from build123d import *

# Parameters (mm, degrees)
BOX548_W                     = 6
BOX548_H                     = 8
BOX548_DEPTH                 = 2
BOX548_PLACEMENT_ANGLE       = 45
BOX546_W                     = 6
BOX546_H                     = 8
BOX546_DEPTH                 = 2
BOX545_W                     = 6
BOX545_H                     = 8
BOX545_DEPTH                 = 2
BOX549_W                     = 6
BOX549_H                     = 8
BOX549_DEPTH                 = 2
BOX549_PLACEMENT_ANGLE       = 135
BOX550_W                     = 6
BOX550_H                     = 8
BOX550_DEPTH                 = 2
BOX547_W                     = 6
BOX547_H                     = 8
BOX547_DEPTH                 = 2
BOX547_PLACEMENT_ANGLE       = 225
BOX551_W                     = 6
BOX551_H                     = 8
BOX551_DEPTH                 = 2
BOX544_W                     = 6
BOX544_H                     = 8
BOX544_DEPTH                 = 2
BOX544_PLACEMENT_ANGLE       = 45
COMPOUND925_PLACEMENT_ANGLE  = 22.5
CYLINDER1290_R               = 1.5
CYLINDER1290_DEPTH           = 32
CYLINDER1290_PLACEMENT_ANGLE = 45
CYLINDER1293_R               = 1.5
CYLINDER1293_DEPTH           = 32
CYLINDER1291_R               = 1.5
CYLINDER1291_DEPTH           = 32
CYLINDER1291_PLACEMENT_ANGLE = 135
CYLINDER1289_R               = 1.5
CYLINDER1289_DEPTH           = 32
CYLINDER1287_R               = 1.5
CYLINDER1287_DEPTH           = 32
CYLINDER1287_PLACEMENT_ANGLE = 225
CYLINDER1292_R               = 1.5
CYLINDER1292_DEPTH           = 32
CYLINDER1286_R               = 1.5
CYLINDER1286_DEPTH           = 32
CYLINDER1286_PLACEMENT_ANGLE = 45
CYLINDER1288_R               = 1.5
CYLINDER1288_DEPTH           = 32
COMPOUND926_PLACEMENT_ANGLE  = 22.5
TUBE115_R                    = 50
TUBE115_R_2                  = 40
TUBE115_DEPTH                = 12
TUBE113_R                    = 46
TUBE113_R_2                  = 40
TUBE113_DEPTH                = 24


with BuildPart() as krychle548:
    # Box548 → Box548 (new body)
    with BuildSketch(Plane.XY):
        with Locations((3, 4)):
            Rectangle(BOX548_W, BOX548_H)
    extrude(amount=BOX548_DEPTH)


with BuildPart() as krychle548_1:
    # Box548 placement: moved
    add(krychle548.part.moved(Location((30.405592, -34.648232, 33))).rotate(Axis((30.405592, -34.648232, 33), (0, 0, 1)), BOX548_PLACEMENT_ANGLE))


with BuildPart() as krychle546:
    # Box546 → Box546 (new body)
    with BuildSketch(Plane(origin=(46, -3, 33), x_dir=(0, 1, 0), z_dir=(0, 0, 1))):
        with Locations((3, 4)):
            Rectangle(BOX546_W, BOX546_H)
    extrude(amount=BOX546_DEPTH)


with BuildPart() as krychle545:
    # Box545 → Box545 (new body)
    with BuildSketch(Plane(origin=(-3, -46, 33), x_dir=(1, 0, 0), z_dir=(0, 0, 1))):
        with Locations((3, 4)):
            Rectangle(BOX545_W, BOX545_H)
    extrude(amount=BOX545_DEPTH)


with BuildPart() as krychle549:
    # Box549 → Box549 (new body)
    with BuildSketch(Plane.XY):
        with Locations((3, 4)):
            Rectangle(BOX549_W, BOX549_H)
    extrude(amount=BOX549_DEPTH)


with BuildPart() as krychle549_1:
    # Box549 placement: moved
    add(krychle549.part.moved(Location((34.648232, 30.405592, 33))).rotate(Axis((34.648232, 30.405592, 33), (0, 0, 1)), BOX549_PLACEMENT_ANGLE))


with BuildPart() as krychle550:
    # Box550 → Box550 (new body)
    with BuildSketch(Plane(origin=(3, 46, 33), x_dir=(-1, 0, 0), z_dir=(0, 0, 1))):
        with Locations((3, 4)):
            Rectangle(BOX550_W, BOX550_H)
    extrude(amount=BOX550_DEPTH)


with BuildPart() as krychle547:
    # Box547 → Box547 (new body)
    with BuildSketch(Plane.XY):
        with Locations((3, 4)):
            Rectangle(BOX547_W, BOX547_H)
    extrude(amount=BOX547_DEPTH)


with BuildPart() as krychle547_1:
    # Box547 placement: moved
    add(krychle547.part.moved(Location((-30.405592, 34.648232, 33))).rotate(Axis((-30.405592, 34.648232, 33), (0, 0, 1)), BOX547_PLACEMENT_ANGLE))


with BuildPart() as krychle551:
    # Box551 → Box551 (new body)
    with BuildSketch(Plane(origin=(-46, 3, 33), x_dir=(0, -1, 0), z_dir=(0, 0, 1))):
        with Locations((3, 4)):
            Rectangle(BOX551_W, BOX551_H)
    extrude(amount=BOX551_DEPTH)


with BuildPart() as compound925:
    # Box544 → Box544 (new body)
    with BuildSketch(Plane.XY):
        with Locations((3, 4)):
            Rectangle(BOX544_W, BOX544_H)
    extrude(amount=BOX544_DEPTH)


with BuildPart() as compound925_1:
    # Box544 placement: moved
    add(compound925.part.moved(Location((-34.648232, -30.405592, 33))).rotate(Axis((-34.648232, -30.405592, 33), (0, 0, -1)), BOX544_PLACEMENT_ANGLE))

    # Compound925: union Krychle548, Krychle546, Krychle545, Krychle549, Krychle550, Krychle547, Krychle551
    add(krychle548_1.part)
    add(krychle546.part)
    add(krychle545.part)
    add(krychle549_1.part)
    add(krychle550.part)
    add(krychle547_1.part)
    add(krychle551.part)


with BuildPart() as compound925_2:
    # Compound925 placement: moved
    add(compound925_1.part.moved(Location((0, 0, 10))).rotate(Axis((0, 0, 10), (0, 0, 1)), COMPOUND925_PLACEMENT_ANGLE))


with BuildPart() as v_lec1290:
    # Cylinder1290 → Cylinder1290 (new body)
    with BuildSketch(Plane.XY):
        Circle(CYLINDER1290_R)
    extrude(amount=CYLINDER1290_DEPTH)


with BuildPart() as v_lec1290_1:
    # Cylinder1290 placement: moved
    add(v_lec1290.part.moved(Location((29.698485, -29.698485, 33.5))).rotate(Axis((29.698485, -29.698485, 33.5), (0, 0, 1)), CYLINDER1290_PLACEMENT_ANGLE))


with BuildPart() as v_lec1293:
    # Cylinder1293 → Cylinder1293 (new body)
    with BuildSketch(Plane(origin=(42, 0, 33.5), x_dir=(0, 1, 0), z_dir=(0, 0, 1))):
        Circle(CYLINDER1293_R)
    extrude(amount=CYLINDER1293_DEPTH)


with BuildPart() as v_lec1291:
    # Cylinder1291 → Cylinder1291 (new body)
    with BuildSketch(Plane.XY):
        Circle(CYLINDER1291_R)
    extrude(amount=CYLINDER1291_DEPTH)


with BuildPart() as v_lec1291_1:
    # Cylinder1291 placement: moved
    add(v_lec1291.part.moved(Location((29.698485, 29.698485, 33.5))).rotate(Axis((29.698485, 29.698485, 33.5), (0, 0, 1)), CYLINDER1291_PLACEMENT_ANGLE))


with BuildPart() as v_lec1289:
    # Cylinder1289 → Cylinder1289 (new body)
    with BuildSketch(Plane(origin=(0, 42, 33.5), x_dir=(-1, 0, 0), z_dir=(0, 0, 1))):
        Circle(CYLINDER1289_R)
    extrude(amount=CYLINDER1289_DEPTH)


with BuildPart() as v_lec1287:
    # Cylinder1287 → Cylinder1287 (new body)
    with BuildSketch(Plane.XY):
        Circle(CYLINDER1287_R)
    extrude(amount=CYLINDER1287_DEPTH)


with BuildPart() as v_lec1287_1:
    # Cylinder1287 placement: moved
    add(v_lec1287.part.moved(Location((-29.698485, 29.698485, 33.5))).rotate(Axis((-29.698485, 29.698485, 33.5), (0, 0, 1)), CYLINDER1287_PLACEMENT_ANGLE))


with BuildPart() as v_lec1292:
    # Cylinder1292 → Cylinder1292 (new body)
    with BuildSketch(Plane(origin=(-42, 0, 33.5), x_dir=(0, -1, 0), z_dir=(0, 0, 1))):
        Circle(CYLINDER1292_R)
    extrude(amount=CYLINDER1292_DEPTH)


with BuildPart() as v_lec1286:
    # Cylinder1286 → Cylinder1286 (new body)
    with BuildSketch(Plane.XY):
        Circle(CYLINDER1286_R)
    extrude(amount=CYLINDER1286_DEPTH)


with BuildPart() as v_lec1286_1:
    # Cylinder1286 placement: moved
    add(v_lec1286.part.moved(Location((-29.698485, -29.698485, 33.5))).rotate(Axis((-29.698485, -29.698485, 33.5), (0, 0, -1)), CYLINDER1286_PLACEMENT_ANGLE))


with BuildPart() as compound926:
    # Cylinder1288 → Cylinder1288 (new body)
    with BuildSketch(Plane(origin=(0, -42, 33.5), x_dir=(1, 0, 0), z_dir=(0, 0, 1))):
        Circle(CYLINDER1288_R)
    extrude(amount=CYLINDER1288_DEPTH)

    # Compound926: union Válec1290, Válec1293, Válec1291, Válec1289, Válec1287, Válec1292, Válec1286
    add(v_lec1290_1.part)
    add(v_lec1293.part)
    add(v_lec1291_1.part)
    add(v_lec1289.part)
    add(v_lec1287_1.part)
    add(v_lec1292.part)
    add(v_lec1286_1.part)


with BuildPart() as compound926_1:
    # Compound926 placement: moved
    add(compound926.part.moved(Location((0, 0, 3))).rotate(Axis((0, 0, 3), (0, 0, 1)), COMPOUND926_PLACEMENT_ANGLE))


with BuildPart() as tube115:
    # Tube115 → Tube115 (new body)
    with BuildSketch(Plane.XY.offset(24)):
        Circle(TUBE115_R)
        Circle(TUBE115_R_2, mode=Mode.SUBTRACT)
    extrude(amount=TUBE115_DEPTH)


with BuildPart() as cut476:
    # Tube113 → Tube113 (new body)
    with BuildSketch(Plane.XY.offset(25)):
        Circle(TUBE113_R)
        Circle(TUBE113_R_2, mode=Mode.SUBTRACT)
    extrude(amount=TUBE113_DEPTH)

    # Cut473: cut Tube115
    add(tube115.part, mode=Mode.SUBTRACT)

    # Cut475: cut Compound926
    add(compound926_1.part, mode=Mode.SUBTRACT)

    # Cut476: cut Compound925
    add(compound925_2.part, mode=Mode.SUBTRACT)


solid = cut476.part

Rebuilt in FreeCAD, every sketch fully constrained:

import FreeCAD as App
import Part
import Sketcher

doc = App.newDocument("Part")
params = doc.addObject("Spreadsheet::Sheet", "Params")
for row, (alias, value) in enumerate([
    ("sketch1_width", "6 mm"),
    ("sketch1_height", "8 mm"),
    ("pad1_length", "2 mm"),
    ("sketch2_width", "8 mm"),
    ("sketch2_height", "6 mm"),
    ("pad2_length", "2 mm"),
    ("sketch3_width", "6 mm"),
    ("sketch3_height", "8 mm"),
    ("pad3_length", "2 mm"),
    ("sketch4_width", "6 mm"),
    ("sketch4_height", "8 mm"),
    ("pad4_length", "2 mm"),
    ("sketch5_width", "6 mm"),
    ("sketch5_height", "8 mm"),
    ("pad5_length", "2 mm"),
    ("sketch6_width", "6 mm"),
    ("sketch6_height", "8 mm"),
    ("pad6_length", "2 mm"),
    ("sketch7_width", "8 mm"),
    ("sketch7_height", "6 mm"),
    ("pad7_length", "2 mm"),
    ("sketch8_width", "6 mm"),
    ("sketch8_height", "8 mm"),
    ("pad8_length", "2 mm"),
    ("sketch9_diameter", "3 mm"),
    ("pad9_length", "32 mm"),
    ("sketch10_diameter", "3 mm"),
    ("pad10_length", "32 mm"),
    ("sketch11_diameter", "3 mm"),
    ("pad11_length", "32 mm"),
    ("sketch12_diameter", "3 mm"),
    ("pad12_length", "32 mm"),
    ("sketch13_diameter", "3 mm"),
    ("pad13_length", "32 mm"),
    ("sketch14_diameter", "3 mm"),
    ("pad14_length", "32 mm"),
    ("sketch15_diameter", "3 mm"),
    ("pad15_length", "32 mm"),
    ("sketch16_diameter", "3 mm"),
    ("pad16_length", "32 mm"),
    ("sketch17_diameter", "100 mm"),
    ("sketch17_diameter2", "80 mm"),
    ("pad17_length", "12 mm"),
    ("sketch18_diameter", "92 mm"),
    ("sketch18_diameter2", "80 mm"),
    ("pad18_length", "24 mm"),
], start=1):
    params.set(f"A{row}", alias)
    params.set(f"B{row}", "=" + value)
    params.setAlias(f"B{row}", alias)

body = doc.addObject("PartDesign::Body", "Body")

# Sketch on XY plane
sketch1 = body.newObject("Sketcher::SketchObject", "Sketch")
sketch1.AttachmentSupport = (doc.getObject("XY_Plane"), [""])
sketch1.MapMode = "FlatFace"
sketch1.addGeometry([
    Part.LineSegment(App.Vector(0, 8, 0), App.Vector(0, 0, 0)),
    Part.LineSegment(App.Vector(0, 0, 0), App.Vector(6, 0, 0)),
    Part.LineSegment(App.Vector(6, 0, 0), App.Vector(6, 8, 0)),
    Part.LineSegment(App.Vector(6, 8, 0), App.Vector(0, 8, 0)),
], False)
sketch1.addConstraint([
    Sketcher.Constraint("Coincident", 0, 2, 1, 1),
    Sketcher.Constraint("Coincident", 1, 2, 2, 1),
    Sketcher.Constraint("Coincident", 2, 2, 3, 1),
    Sketcher.Constraint("Coincident", 3, 2, 0, 1),
    Sketcher.Constraint("Vertical", 0),
    Sketcher.Constraint("Horizontal", 1),
    Sketcher.Constraint("Vertical", 2),
    Sketcher.Constraint("Horizontal", 3),
    Sketcher.Constraint("Coincident", 0, 2, -1, 1),
    Sketcher.Constraint("DistanceX", 1, 1, 1, 2, 6.0),
    Sketcher.Constraint("DistanceY", 0, 2, 0, 1, 8.0),
])
sketch1.setExpression("Constraints[9]", "Params.sketch1_width")
sketch1.setExpression("Constraints[10]", "Params.sketch1_height")
pad1 = body.newObject("PartDesign::Pad", "Pad")
pad1.Profile = sketch1
pad1.setExpression("Length", "Params.pad1_length")
body2 = doc.addObject("PartDesign::Body", "Body001")
doc.recompute()

body.Placement = App.Placement(App.Vector(30.405592, -34.648232, 33), App.Rotation(App.Vector(0, 0, 1), 45))
boolean = body2.newObject("PartDesign::Boolean", "Boolean")
boolean.Type = "Fuse"
boolean.addObjects([body])
body3 = doc.addObject("PartDesign::Body", "Body002")

# Sketch on XY plane
sketch2 = body3.newObject("Sketcher::SketchObject", "Sketch001")
sketch2.AttachmentSupport = (doc.getObject("XY_Plane002"), [""])
sketch2.MapMode = "FlatFace"
sketch2.AttachmentOffset = App.Placement(App.Vector(0, 0, 33), App.Rotation())
sketch2.addGeometry([
    Part.LineSegment(App.Vector(38, -3, 0), App.Vector(46, -3, 0)),
    Part.LineSegment(App.Vector(46, -3, 0), App.Vector(46, 3, 0)),
    Part.LineSegment(App.Vector(46, 3, 0), App.Vector(38, 3, 0)),
    Part.LineSegment(App.Vector(38, 3, 0), App.Vector(38, -3, 0)),
], False)
sketch2.addConstraint([
    Sketcher.Constraint("Coincident", 0, 2, 1, 1),
    Sketcher.Constraint("Coincident", 1, 2, 2, 1),
    Sketcher.Constraint("Coincident", 2, 2, 3, 1),
    Sketcher.Constraint("Coincident", 3, 2, 0, 1),
    Sketcher.Constraint("Horizontal", 0),
    Sketcher.Constraint("Vertical", 1),
    Sketcher.Constraint("Horizontal", 2),
    Sketcher.Constraint("Vertical", 3),
    Sketcher.Constraint("DistanceX", 0, 1, 0, 2, 8.0),
    Sketcher.Constraint("DistanceY", 1, 1, 1, 2, 6.0),
    Sketcher.Constraint("DistanceX", -1, 1, 0, 2, 46.0),
    Sketcher.Constraint("DistanceY", 0, 2, -1, 1, 3.0),
])
sketch2.setExpression("Constraints[8]", "Params.sketch2_width")
sketch2.setExpression("Constraints[9]", "Params.sketch2_height")
pad2 = body3.newObject("PartDesign::Pad", "Pad001")
pad2.Profile = sketch2
pad2.setExpression("Length", "Params.pad2_length")
body4 = doc.addObject("PartDesign::Body", "Body003")

# Sketch on XY plane
sketch3 = body4.newObject("Sketcher::SketchObject", "Sketch002")
sketch3.AttachmentSupport = (doc.getObject("XY_Plane003"), [""])
sketch3.MapMode = "FlatFace"
sketch3.AttachmentOffset = App.Placement(App.Vector(0, 0, 33), App.Rotation())
sketch3.addGeometry([
    Part.LineSegment(App.Vector(-3, -38, 0), App.Vector(-3, -46, 0)),
    Part.LineSegment(App.Vector(-3, -46, 0), App.Vector(3, -46, 0)),
    Part.LineSegment(App.Vector(3, -46, 0), App.Vector(3, -38, 0)),
    Part.LineSegment(App.Vector(3, -38, 0), App.Vector(-3, -38, 0)),
], False)
sketch3.addConstraint([
    Sketcher.Constraint("Coincident", 0, 2, 1, 1),
    Sketcher.Constraint("Coincident", 1, 2, 2, 1),
    Sketcher.Constraint("Coincident", 2, 2, 3, 1),
    Sketcher.Constraint("Coincident", 3, 2, 0, 1),
    Sketcher.Constraint("Vertical", 0),
    Sketcher.Constraint("Horizontal", 1),
    Sketcher.Constraint("Vertical", 2),
    Sketcher.Constraint("Horizontal", 3),
    Sketcher.Constraint("DistanceX", 1, 1, 1, 2, 6.0),
    Sketcher.Constraint("DistanceY", 0, 2, 0, 1, 8.0),
    Sketcher.Constraint("DistanceX", 0, 2, -1, 1, 3.0),
    Sketcher.Constraint("DistanceY", 0, 2, -1, 1, 46.0),
])
sketch3.setExpression("Constraints[8]", "Params.sketch3_width")
sketch3.setExpression("Constraints[9]", "Params.sketch3_height")
pad3 = body4.newObject("PartDesign::Pad", "Pad002")
pad3.Profile = sketch3
pad3.setExpression("Length", "Params.pad3_length")
body5 = doc.addObject("PartDesign::Body", "Body004")

# Sketch on XY plane
sketch4 = body5.newObject("Sketcher::SketchObject", "Sketch003")
sketch4.AttachmentSupport = (doc.getObject("XY_Plane004"), [""])
sketch4.MapMode = "FlatFace"
sketch4.addGeometry([
    Part.LineSegment(App.Vector(0, 8, 0), App.Vector(0, 0, 0)),
    Part.LineSegment(App.Vector(0, 0, 0), App.Vector(6, 0, 0)),
    Part.LineSegment(App.Vector(6, 0, 0), App.Vector(6, 8, 0)),
    Part.LineSegment(App.Vector(6, 8, 0), App.Vector(0, 8, 0)),
], False)
sketch4.addConstraint([
    Sketcher.Constraint("Coincident", 0, 2, 1, 1),
    Sketcher.Constraint("Coincident", 1, 2, 2, 1),
    Sketcher.Constraint("Coincident", 2, 2, 3, 1),
    Sketcher.Constraint("Coincident", 3, 2, 0, 1),
    Sketcher.Constraint("Vertical", 0),
    Sketcher.Constraint("Horizontal", 1),
    Sketcher.Constraint("Vertical", 2),
    Sketcher.Constraint("Horizontal", 3),
    Sketcher.Constraint("Coincident", 0, 2, -1, 1),
    Sketcher.Constraint("DistanceX", 1, 1, 1, 2, 6.0),
    Sketcher.Constraint("DistanceY", 0, 2, 0, 1, 8.0),
])
sketch4.setExpression("Constraints[9]", "Params.sketch4_width")
sketch4.setExpression("Constraints[10]", "Params.sketch4_height")
pad4 = body5.newObject("PartDesign::Pad", "Pad003")
pad4.Profile = sketch4
pad4.setExpression("Length", "Params.pad4_length")
body6 = doc.addObject("PartDesign::Body", "Body005")
doc.recompute()

body5.Placement = App.Placement(App.Vector(34.648232, 30.405592, 33), App.Rotation(App.Vector(0, 0, 1), 135))
boolean2 = body6.newObject("PartDesign::Boolean", "Boolean001")
boolean2.Type = "Fuse"
boolean2.addObjects([body5])
body7 = doc.addObject("PartDesign::Body", "Body006")

# Sketch on XY plane
sketch5 = body7.newObject("Sketcher::SketchObject", "Sketch004")
sketch5.AttachmentSupport = (doc.getObject("XY_Plane006"), [""])
sketch5.MapMode = "FlatFace"
sketch5.AttachmentOffset = App.Placement(App.Vector(0, 0, 33), App.Rotation())
sketch5.addGeometry([
    Part.LineSegment(App.Vector(3, 38, 0), App.Vector(3, 46, 0)),
    Part.LineSegment(App.Vector(3, 46, 0), App.Vector(-3, 46, 0)),
    Part.LineSegment(App.Vector(-3, 46, 0), App.Vector(-3, 38, 0)),
    Part.LineSegment(App.Vector(-3, 38, 0), App.Vector(3, 38, 0)),
], False)
sketch5.addConstraint([
    Sketcher.Constraint("Coincident", 0, 2, 1, 1),
    Sketcher.Constraint("Coincident", 1, 2, 2, 1),
    Sketcher.Constraint("Coincident", 2, 2, 3, 1),
    Sketcher.Constraint("Coincident", 3, 2, 0, 1),
    Sketcher.Constraint("Vertical", 0),
    Sketcher.Constraint("Horizontal", 1),
    Sketcher.Constraint("Vertical", 2),
    Sketcher.Constraint("Horizontal", 3),
    Sketcher.Constraint("DistanceX", 1, 2, 1, 1, 6.0),
    Sketcher.Constraint("DistanceY", 0, 1, 0, 2, 8.0),
    Sketcher.Constraint("DistanceX", -1, 1, 0, 2, 3.0),
    Sketcher.Constraint("DistanceY", -1, 1, 0, 2, 46.0),
])
sketch5.setExpression("Constraints[8]", "Params.sketch5_width")
sketch5.setExpression("Constraints[9]", "Params.sketch5_height")
pad5 = body7.newObject("PartDesign::Pad", "Pad004")
pad5.Profile = sketch5
pad5.setExpression("Length", "Params.pad5_length")
body8 = doc.addObject("PartDesign::Body", "Body007")

# Sketch on XY plane
sketch6 = body8.newObject("Sketcher::SketchObject", "Sketch005")
sketch6.AttachmentSupport = (doc.getObject("XY_Plane007"), [""])
sketch6.MapMode = "FlatFace"
sketch6.addGeometry([
    Part.LineSegment(App.Vector(0, 8, 0), App.Vector(0, 0, 0)),
    Part.LineSegment(App.Vector(0, 0, 0), App.Vector(6, 0, 0)),
    Part.LineSegment(App.Vector(6, 0, 0), App.Vector(6, 8, 0)),
    Part.LineSegment(App.Vector(6, 8, 0), App.Vector(0, 8, 0)),
], False)
sketch6.addConstraint([
    Sketcher.Constraint("Coincident", 0, 2, 1, 1),
    Sketcher.Constraint("Coincident", 1, 2, 2, 1),
    Sketcher.Constraint("Coincident", 2, 2, 3, 1),
    Sketcher.Constraint("Coincident", 3, 2, 0, 1),
    Sketcher.Constraint("Vertical", 0),
    Sketcher.Constraint("Horizontal", 1),
    Sketcher.Constraint("Vertical", 2),
    Sketcher.Constraint("Horizontal", 3),
    Sketcher.Constraint("Coincident", 0, 2, -1, 1),
    Sketcher.Constraint("DistanceX", 1, 1, 1, 2, 6.0),
    Sketcher.Constraint("DistanceY", 0, 2, 0, 1, 8.0),
])
sketch6.setExpression("Constraints[9]", "Params.sketch6_width")
sketch6.setExpression("Constraints[10]", "Params.sketch6_height")
pad6 = body8.newObject("PartDesign::Pad", "Pad005")
pad6.Profile = sketch6
pad6.setExpression("Length", "Params.pad6_length")
body9 = doc.addObject("PartDesign::Body", "Body008")
doc.recompute()

body8.Placement = App.Placement(App.Vector(-30.405592, 34.648232, 33), App.Rotation(App.Vector(0, 0, 1), 225))
boolean3 = body9.newObject("PartDesign::Boolean", "Boolean002")
boolean3.Type = "Fuse"
boolean3.addObjects([body8])
body10 = doc.addObject("PartDesign::Body", "Body009")

# Sketch on XY plane
sketch7 = body10.newObject("Sketcher::SketchObject", "Sketch006")
sketch7.AttachmentSupport = (doc.getObject("XY_Plane009"), [""])
sketch7.MapMode = "FlatFace"
sketch7.AttachmentOffset = App.Placement(App.Vector(0, 0, 33), App.Rotation())
sketch7.addGeometry([
    Part.LineSegment(App.Vector(-38, 3, 0), App.Vector(-46, 3, 0)),
    Part.LineSegment(App.Vector(-46, 3, 0), App.Vector(-46, -3, 0)),
    Part.LineSegment(App.Vector(-46, -3, 0), App.Vector(-38, -3, 0)),
    Part.LineSegment(App.Vector(-38, -3, 0), App.Vector(-38, 3, 0)),
], False)
sketch7.addConstraint([
    Sketcher.Constraint("Coincident", 0, 2, 1, 1),
    Sketcher.Constraint("Coincident", 1, 2, 2, 1),
    Sketcher.Constraint("Coincident", 2, 2, 3, 1),
    Sketcher.Constraint("Coincident", 3, 2, 0, 1),
    Sketcher.Constraint("Horizontal", 0),
    Sketcher.Constraint("Vertical", 1),
    Sketcher.Constraint("Horizontal", 2),
    Sketcher.Constraint("Vertical", 3),
    Sketcher.Constraint("DistanceX", 0, 2, 0, 1, 8.0),
    Sketcher.Constraint("DistanceY", 1, 2, 1, 1, 6.0),
    Sketcher.Constraint("DistanceX", 0, 2, -1, 1, 46.0),
    Sketcher.Constraint("DistanceY", -1, 1, 0, 2, 3.0),
])
sketch7.setExpression("Constraints[8]", "Params.sketch7_width")
sketch7.setExpression("Constraints[9]", "Params.sketch7_height")
pad7 = body10.newObject("PartDesign::Pad", "Pad006")
pad7.Profile = sketch7
pad7.setExpression("Length", "Params.pad7_length")
body11 = doc.addObject("PartDesign::Body", "Body010")

# Sketch on XY plane
sketch8 = body11.newObject("Sketcher::SketchObject", "Sketch007")
sketch8.AttachmentSupport = (doc.getObject("XY_Plane010"), [""])
sketch8.MapMode = "FlatFace"
sketch8.addGeometry([
    Part.LineSegment(App.Vector(0, 8, 0), App.Vector(0, 0, 0)),
    Part.LineSegment(App.Vector(0, 0, 0), App.Vector(6, 0, 0)),
    Part.LineSegment(App.Vector(6, 0, 0), App.Vector(6, 8, 0)),
    Part.LineSegment(App.Vector(6, 8, 0), App.Vector(0, 8, 0)),
], False)
sketch8.addConstraint([
    Sketcher.Constraint("Coincident", 0, 2, 1, 1),
    Sketcher.Constraint("Coincident", 1, 2, 2, 1),
    Sketcher.Constraint("Coincident", 2, 2, 3, 1),
    Sketcher.Constraint("Coincident", 3, 2, 0, 1),
    Sketcher.Constraint("Vertical", 0),
    Sketcher.Constraint("Horizontal", 1),
    Sketcher.Constraint("Vertical", 2),
    Sketcher.Constraint("Horizontal", 3),
    Sketcher.Constraint("Coincident", 0, 2, -1, 1),
    Sketcher.Constraint("DistanceX", 1, 1, 1, 2, 6.0),
    Sketcher.Constraint("DistanceY", 0, 2, 0, 1, 8.0),
])
sketch8.setExpression("Constraints[9]", "Params.sketch8_width")
sketch8.setExpression("Constraints[10]", "Params.sketch8_height")
pad8 = body11.newObject("PartDesign::Pad", "Pad007")
pad8.Profile = sketch8
pad8.setExpression("Length", "Params.pad8_length")
body12 = doc.addObject("PartDesign::Body", "Body011")
body12.AllowCompound = True
doc.recompute()

body11.Placement = App.Placement(App.Vector(-34.648232, -30.405592, 33), App.Rotation(App.Vector(0, 0, -1), 45))
boolean4 = body12.newObject("PartDesign::Boolean", "Boolean003")
boolean4.Type = "Fuse"
boolean4.addObjects([body11])
doc.recompute()

boolean5 = body12.newObject("PartDesign::Boolean", "Boolean004")
boolean5.Type = "Fuse"
boolean5.addObjects([body2])
doc.recompute()

boolean6 = body12.newObject("PartDesign::Boolean", "Boolean005")
boolean6.Type = "Fuse"
boolean6.addObjects([body3])
doc.recompute()

boolean7 = body12.newObject("PartDesign::Boolean", "Boolean006")
boolean7.Type = "Fuse"
boolean7.addObjects([body4])
doc.recompute()

boolean8 = body12.newObject("PartDesign::Boolean", "Boolean007")
boolean8.Type = "Fuse"
boolean8.addObjects([body6])
doc.recompute()

boolean9 = body12.newObject("PartDesign::Boolean", "Boolean008")
boolean9.Type = "Fuse"
boolean9.addObjects([body7])
doc.recompute()

boolean10 = body12.newObject("PartDesign::Boolean", "Boolean009")
boolean10.Type = "Fuse"
boolean10.addObjects([body9])
doc.recompute()

boolean11 = body12.newObject("PartDesign::Boolean", "Boolean010")
boolean11.Type = "Fuse"
boolean11.addObjects([body10])
body13 = doc.addObject("PartDesign::Body", "Body012")
body13.AllowCompound = True
doc.recompute()

body12.Placement = App.Placement(App.Vector(0, 0, 10), App.Rotation(App.Vector(0, 0, 1), 22.5))
boolean12 = body13.newObject("PartDesign::Boolean", "Boolean011")
boolean12.Type = "Fuse"
boolean12.addObjects([body12])
body14 = doc.addObject("PartDesign::Body", "Body013")

# Sketch on XY plane
sketch9 = body14.newObject("Sketcher::SketchObject", "Sketch008")
sketch9.AttachmentSupport = (doc.getObject("XY_Plane013"), [""])
sketch9.MapMode = "FlatFace"
sketch9.addGeometry(Part.Circle(App.Vector(0, 0, 0), App.Vector(0, 0, 1), 1.5), False)
sketch9.addConstraint([
    Sketcher.Constraint("Coincident", 0, 3, -1, 1),
    Sketcher.Constraint("Diameter", 0, 3.0),
])
sketch9.setExpression("Constraints[1]", "Params.sketch9_diameter")
pad9 = body14.newObject("PartDesign::Pad", "Pad008")
pad9.Profile = sketch9
pad9.setExpression("Length", "Params.pad9_length")
body15 = doc.addObject("PartDesign::Body", "Body014")
doc.recompute()

body14.Placement = App.Placement(App.Vector(29.698485, -29.698485, 33.5), App.Rotation(App.Vector(0, 0, 1), 45))
boolean13 = body15.newObject("PartDesign::Boolean", "Boolean012")
boolean13.Type = "Fuse"
boolean13.addObjects([body14])
body16 = doc.addObject("PartDesign::Body", "Body015")

# Sketch on XY plane
sketch10 = body16.newObject("Sketcher::SketchObject", "Sketch009")
sketch10.AttachmentSupport = (doc.getObject("XY_Plane015"), [""])
sketch10.MapMode = "FlatFace"
sketch10.AttachmentOffset = App.Placement(App.Vector(0, 0, 33.5), App.Rotation())
sketch10.addGeometry(Part.Circle(App.Vector(42, 0, 0), App.Vector(0, 0, 1), 1.5), False)
sketch10.addConstraint([
    Sketcher.Constraint("PointOnObject", 0, 3, -1),
    Sketcher.Constraint("Diameter", 0, 3.0),
    Sketcher.Constraint("DistanceX", -1, 1, 0, 3, 42.0),
])
sketch10.setExpression("Constraints[1]", "Params.sketch10_diameter")
pad10 = body16.newObject("PartDesign::Pad", "Pad009")
pad10.Profile = sketch10
pad10.setExpression("Length", "Params.pad10_length")
body17 = doc.addObject("PartDesign::Body", "Body016")

# Sketch on XY plane
sketch11 = body17.newObject("Sketcher::SketchObject", "Sketch010")
sketch11.AttachmentSupport = (doc.getObject("XY_Plane016"), [""])
sketch11.MapMode = "FlatFace"
sketch11.addGeometry(Part.Circle(App.Vector(0, 0, 0), App.Vector(0, 0, 1), 1.5), False)
sketch11.addConstraint([
    Sketcher.Constraint("Coincident", 0, 3, -1, 1),
    Sketcher.Constraint("Diameter", 0, 3.0),
])
sketch11.setExpression("Constraints[1]", "Params.sketch11_diameter")
pad11 = body17.newObject("PartDesign::Pad", "Pad010")
pad11.Profile = sketch11
pad11.setExpression("Length", "Params.pad11_length")
body18 = doc.addObject("PartDesign::Body", "Body017")
doc.recompute()

body17.Placement = App.Placement(App.Vector(29.698485, 29.698485, 33.5), App.Rotation(App.Vector(0, 0, 1), 135))
boolean14 = body18.newObject("PartDesign::Boolean", "Boolean013")
boolean14.Type = "Fuse"
boolean14.addObjects([body17])
body19 = doc.addObject("PartDesign::Body", "Body018")

# Sketch on XY plane
sketch12 = body19.newObject("Sketcher::SketchObject", "Sketch011")
sketch12.AttachmentSupport = (doc.getObject("XY_Plane018"), [""])
sketch12.MapMode = "FlatFace"
sketch12.AttachmentOffset = App.Placement(App.Vector(0, 0, 33.5), App.Rotation())
sketch12.addGeometry(Part.Circle(App.Vector(0, 42, 0), App.Vector(0, 0, 1), 1.5), False)
sketch12.addConstraint([
    Sketcher.Constraint("PointOnObject", 0, 3, -2),
    Sketcher.Constraint("Diameter", 0, 3.0),
    Sketcher.Constraint("DistanceY", -1, 1, 0, 3, 42.0),
])
sketch12.setExpression("Constraints[1]", "Params.sketch12_diameter")
pad12 = body19.newObject("PartDesign::Pad", "Pad011")
pad12.Profile = sketch12
pad12.setExpression("Length", "Params.pad12_length")
body20 = doc.addObject("PartDesign::Body", "Body019")

# Sketch on XY plane
sketch13 = body20.newObject("Sketcher::SketchObject", "Sketch012")
sketch13.AttachmentSupport = (doc.getObject("XY_Plane019"), [""])
sketch13.MapMode = "FlatFace"
sketch13.addGeometry(Part.Circle(App.Vector(0, 0, 0), App.Vector(0, 0, 1), 1.5), False)
sketch13.addConstraint([
    Sketcher.Constraint("Coincident", 0, 3, -1, 1),
    Sketcher.Constraint("Diameter", 0, 3.0),
])
sketch13.setExpression("Constraints[1]", "Params.sketch13_diameter")
pad13 = body20.newObject("PartDesign::Pad", "Pad012")
pad13.Profile = sketch13
pad13.setExpression("Length", "Params.pad13_length")
body21 = doc.addObject("PartDesign::Body", "Body020")
doc.recompute()

body20.Placement = App.Placement(App.Vector(-29.698485, 29.698485, 33.5), App.Rotation(App.Vector(0, 0, 1), 225))
boolean15 = body21.newObject("PartDesign::Boolean", "Boolean014")
boolean15.Type = "Fuse"
boolean15.addObjects([body20])
body22 = doc.addObject("PartDesign::Body", "Body021")

# Sketch on XY plane
sketch14 = body22.newObject("Sketcher::SketchObject", "Sketch013")
sketch14.AttachmentSupport = (doc.getObject("XY_Plane021"), [""])
sketch14.MapMode = "FlatFace"
sketch14.AttachmentOffset = App.Placement(App.Vector(0, 0, 33.5), App.Rotation())
sketch14.addGeometry(Part.Circle(App.Vector(-42, 0, 0), App.Vector(0, 0, 1), 1.5), False)
sketch14.addConstraint([
    Sketcher.Constraint("PointOnObject", 0, 3, -1),
    Sketcher.Constraint("Diameter", 0, 3.0),
    Sketcher.Constraint("DistanceX", 0, 3, -1, 1, 42.0),
])
sketch14.setExpression("Constraints[1]", "Params.sketch14_diameter")
pad14 = body22.newObject("PartDesign::Pad", "Pad013")
pad14.Profile = sketch14
pad14.setExpression("Length", "Params.pad14_length")
body23 = doc.addObject("PartDesign::Body", "Body022")

# Sketch on XY plane
sketch15 = body23.newObject("Sketcher::SketchObject", "Sketch014")
sketch15.AttachmentSupport = (doc.getObject("XY_Plane022"), [""])
sketch15.MapMode = "FlatFace"
sketch15.addGeometry(Part.Circle(App.Vector(0, 0, 0), App.Vector(0, 0, 1), 1.5), False)
sketch15.addConstraint([
    Sketcher.Constraint("Coincident", 0, 3, -1, 1),
    Sketcher.Constraint("Diameter", 0, 3.0),
])
sketch15.setExpression("Constraints[1]", "Params.sketch15_diameter")
pad15 = body23.newObject("PartDesign::Pad", "Pad014")
pad15.Profile = sketch15
pad15.setExpression("Length", "Params.pad15_length")
body24 = doc.addObject("PartDesign::Body", "Body023")
doc.recompute()

body23.Placement = App.Placement(App.Vector(-29.698485, -29.698485, 33.5), App.Rotation(App.Vector(0, 0, -1), 45))
boolean16 = body24.newObject("PartDesign::Boolean", "Boolean015")
boolean16.Type = "Fuse"
boolean16.addObjects([body23])
body25 = doc.addObject("PartDesign::Body", "Body024")
body25.AllowCompound = True

# Sketch on XY plane
sketch16 = body25.newObject("Sketcher::SketchObject", "Sketch015")
sketch16.AttachmentSupport = (doc.getObject("XY_Plane024"), [""])
sketch16.MapMode = "FlatFace"
sketch16.AttachmentOffset = App.Placement(App.Vector(0, 0, 33.5), App.Rotation())
sketch16.addGeometry(Part.Circle(App.Vector(0, -42, 0), App.Vector(0, 0, 1), 1.5), False)
sketch16.addConstraint([
    Sketcher.Constraint("PointOnObject", 0, 3, -2),
    Sketcher.Constraint("Diameter", 0, 3.0),
    Sketcher.Constraint("DistanceY", 0, 3, -1, 1, 42.0),
])
sketch16.setExpression("Constraints[1]", "Params.sketch16_diameter")
pad16 = body25.newObject("PartDesign::Pad", "Pad015")
pad16.Profile = sketch16
pad16.setExpression("Length", "Params.pad16_length")
doc.recompute()

boolean17 = body25.newObject("PartDesign::Boolean", "Boolean016")
boolean17.Type = "Fuse"
boolean17.addObjects([body15])
doc.recompute()

boolean18 = body25.newObject("PartDesign::Boolean", "Boolean017")
boolean18.Type = "Fuse"
boolean18.addObjects([body16])
doc.recompute()

boolean19 = body25.newObject("PartDesign::Boolean", "Boolean018")
boolean19.Type = "Fuse"
boolean19.addObjects([body18])
doc.recompute()

boolean20 = body25.newObject("PartDesign::Boolean", "Boolean019")
boolean20.Type = "Fuse"
boolean20.addObjects([body19])
doc.recompute()

boolean21 = body25.newObject("PartDesign::Boolean", "Boolean020")
boolean21.Type = "Fuse"
boolean21.addObjects([body21])
doc.recompute()

boolean22 = body25.newObject("PartDesign::Boolean", "Boolean021")
boolean22.Type = "Fuse"
boolean22.addObjects([body22])
doc.recompute()

boolean23 = body25.newObject("PartDesign::Boolean", "Boolean022")
boolean23.Type = "Fuse"
boolean23.addObjects([body24])
body26 = doc.addObject("PartDesign::Body", "Body025")
body26.AllowCompound = True
doc.recompute()

body25.Placement = App.Placement(App.Vector(0, 0, 3), App.Rotation(App.Vector(0, 0, 1), 22.5))
boolean24 = body26.newObject("PartDesign::Boolean", "Boolean023")
boolean24.Type = "Fuse"
boolean24.addObjects([body25])
body27 = doc.addObject("PartDesign::Body", "Body026")

# Sketch on XY plane
sketch17 = body27.newObject("Sketcher::SketchObject", "Sketch016")
sketch17.AttachmentSupport = (doc.getObject("XY_Plane026"), [""])
sketch17.MapMode = "FlatFace"
sketch17.AttachmentOffset = App.Placement(App.Vector(0, 0, 24), App.Rotation())
sketch17.addGeometry([
    Part.Circle(App.Vector(0, 0, 0), App.Vector(0, 0, 1), 50),
    Part.Circle(App.Vector(0, 0, 0), App.Vector(0, 0, 1), 40),
], False)
sketch17.addConstraint([
    Sketcher.Constraint("Coincident", 0, 3, -1, 1),
    Sketcher.Constraint("Coincident", 1, 3, -1, 1),
    Sketcher.Constraint("Diameter", 0, 100.0),
    Sketcher.Constraint("Diameter", 1, 80.0),
])
sketch17.setExpression("Constraints[2]", "Params.sketch17_diameter")
sketch17.setExpression("Constraints[3]", "Params.sketch17_diameter2")
pad17 = body27.newObject("PartDesign::Pad", "Pad016")
pad17.Profile = sketch17
pad17.setExpression("Length", "Params.pad17_length")
body28 = doc.addObject("PartDesign::Body", "Body027")

# Sketch on XY plane
sketch18 = body28.newObject("Sketcher::SketchObject", "Sketch017")
sketch18.AttachmentSupport = (doc.getObject("XY_Plane027"), [""])
sketch18.MapMode = "FlatFace"
sketch18.AttachmentOffset = App.Placement(App.Vector(0, 0, 25), App.Rotation())
sketch18.addGeometry([
    Part.Circle(App.Vector(0, 0, 0), App.Vector(0, 0, 1), 46),
    Part.Circle(App.Vector(0, 0, 0), App.Vector(0, 0, 1), 40),
], False)
sketch18.addConstraint([
    Sketcher.Constraint("Coincident", 0, 3, -1, 1),
    Sketcher.Constraint("Coincident", 1, 3, -1, 1),
    Sketcher.Constraint("Diameter", 0, 92.0),
    Sketcher.Constraint("Diameter", 1, 80.0),
])
sketch18.setExpression("Constraints[2]", "Params.sketch18_diameter")
sketch18.setExpression("Constraints[3]", "Params.sketch18_diameter2")
pad18 = body28.newObject("PartDesign::Pad", "Pad017")
pad18.Profile = sketch18
pad18.setExpression("Length", "Params.pad18_length")
doc.recompute()

boolean25 = body28.newObject("PartDesign::Boolean", "Boolean024")
boolean25.Type = "Cut"
boolean25.addObjects([body27])
doc.recompute()

boolean26 = body28.newObject("PartDesign::Boolean", "Boolean025")
boolean26.Type = "Cut"
boolean26.addObjects([body26])
doc.recompute()

boolean27 = body28.newObject("PartDesign::Boolean", "Boolean026")
boolean27.Type = "Cut"
boolean27.addObjects([body13])

doc.recompute()
